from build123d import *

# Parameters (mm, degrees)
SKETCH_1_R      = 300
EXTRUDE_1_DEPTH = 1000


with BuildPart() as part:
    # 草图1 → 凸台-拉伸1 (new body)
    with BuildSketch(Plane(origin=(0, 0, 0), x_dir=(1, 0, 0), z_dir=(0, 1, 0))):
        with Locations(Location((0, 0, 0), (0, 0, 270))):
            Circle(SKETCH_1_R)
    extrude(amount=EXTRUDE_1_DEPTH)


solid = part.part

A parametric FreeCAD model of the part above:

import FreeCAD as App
import Part
import Sketcher
from FreeCAD import Vector
Q = App.Units.Quantity

doc = App.newDocument("Part")
body = doc.addObject("PartDesign::Body", "Body")

# Sketch on XZ plane
sketch1 = body.newObject("Sketcher::SketchObject", "Sketch")
sketch1.AttachmentSupport = (doc.getObject("XZ_Plane"), [""])
sketch1.MapMode = "FlatFace"
sketch1.addGeometry(Part.Circle(Vector(0, 0, 0), Vector(0, 0, 1), 300), False)
sketch1.addConstraint(Sketcher.Constraint("Coincident", 0, 3, -1, 1))
sketch1.addConstraint(Sketcher.Constraint("Diameter", 0, Q("600 mm")))
pad1 = body.newObject("PartDesign::Pad", "Pad")
pad1.Profile = sketch1
pad1.Length = 1000
pad1.Reversed = True

doc.recompute()
